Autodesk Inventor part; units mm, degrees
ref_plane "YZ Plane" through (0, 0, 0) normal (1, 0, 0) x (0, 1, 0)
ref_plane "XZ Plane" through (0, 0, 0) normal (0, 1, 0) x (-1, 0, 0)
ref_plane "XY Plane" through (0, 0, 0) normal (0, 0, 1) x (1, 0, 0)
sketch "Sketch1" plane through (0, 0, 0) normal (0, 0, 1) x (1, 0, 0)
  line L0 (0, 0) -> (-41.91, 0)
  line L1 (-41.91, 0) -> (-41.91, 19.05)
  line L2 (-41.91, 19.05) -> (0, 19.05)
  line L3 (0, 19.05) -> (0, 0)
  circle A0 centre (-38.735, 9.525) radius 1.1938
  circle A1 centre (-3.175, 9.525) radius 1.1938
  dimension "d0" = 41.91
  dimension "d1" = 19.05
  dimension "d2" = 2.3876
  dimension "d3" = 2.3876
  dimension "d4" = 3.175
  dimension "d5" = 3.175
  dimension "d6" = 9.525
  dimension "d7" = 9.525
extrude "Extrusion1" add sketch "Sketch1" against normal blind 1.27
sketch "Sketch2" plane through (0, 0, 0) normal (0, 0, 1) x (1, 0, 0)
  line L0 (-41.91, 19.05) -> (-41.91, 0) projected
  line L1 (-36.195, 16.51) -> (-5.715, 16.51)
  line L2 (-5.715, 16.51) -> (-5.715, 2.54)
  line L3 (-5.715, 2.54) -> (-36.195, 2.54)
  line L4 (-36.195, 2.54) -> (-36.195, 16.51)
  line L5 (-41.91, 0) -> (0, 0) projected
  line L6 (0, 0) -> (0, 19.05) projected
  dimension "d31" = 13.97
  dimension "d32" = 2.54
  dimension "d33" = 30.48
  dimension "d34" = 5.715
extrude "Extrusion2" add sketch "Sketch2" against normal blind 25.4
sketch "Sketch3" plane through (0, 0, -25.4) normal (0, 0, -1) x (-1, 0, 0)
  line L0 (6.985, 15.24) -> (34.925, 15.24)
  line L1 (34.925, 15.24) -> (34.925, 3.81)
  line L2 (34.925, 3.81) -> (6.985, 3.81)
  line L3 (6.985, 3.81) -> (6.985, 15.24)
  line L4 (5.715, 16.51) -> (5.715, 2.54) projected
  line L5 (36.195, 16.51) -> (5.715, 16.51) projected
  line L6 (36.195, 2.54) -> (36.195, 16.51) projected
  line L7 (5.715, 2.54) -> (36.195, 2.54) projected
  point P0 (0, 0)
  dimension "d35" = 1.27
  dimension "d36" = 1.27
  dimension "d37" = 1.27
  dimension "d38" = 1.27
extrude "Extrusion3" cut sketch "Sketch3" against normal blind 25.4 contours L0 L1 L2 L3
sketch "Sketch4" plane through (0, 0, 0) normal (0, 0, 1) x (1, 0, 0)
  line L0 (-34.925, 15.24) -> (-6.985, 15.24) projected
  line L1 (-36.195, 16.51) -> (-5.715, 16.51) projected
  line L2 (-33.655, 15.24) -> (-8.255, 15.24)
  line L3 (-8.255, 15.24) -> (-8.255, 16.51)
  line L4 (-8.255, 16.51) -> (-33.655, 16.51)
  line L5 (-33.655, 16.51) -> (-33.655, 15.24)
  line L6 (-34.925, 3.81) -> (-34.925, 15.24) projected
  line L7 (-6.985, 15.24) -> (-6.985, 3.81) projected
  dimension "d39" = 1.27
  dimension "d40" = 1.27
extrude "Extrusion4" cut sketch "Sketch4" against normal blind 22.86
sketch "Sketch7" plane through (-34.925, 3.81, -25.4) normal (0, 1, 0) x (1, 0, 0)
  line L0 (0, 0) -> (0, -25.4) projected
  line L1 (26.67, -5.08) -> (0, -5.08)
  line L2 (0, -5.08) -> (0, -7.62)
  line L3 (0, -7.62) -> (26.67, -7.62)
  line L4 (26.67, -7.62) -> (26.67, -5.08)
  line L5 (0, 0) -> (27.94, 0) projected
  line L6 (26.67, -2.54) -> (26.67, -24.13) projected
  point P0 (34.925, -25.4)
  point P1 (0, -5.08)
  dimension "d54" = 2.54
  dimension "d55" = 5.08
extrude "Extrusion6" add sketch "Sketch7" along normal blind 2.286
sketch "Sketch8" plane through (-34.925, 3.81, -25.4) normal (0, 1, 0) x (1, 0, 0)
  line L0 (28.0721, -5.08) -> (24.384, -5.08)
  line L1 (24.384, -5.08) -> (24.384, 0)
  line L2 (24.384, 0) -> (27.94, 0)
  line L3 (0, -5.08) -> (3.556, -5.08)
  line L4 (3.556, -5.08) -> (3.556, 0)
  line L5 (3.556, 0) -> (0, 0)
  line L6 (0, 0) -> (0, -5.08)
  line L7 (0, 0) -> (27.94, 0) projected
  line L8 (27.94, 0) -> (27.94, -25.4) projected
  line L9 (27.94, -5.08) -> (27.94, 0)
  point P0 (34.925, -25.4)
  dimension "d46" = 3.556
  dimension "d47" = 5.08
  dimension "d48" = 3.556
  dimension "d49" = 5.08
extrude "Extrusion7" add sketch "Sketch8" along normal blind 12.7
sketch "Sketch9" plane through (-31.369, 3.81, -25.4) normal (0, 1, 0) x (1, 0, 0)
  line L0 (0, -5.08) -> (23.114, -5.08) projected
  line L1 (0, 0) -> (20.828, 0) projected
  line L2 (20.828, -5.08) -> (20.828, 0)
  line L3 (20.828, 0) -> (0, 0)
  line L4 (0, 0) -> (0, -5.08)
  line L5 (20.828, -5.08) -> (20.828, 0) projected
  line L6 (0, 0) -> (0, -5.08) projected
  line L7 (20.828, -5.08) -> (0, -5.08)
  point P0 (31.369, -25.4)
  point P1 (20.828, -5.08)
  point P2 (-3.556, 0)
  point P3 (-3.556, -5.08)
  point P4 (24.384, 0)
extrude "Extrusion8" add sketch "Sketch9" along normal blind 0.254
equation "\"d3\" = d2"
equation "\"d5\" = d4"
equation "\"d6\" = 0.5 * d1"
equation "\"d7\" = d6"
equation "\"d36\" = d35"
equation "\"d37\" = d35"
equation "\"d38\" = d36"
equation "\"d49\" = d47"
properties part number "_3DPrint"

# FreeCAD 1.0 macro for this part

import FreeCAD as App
import Part
import Sketcher

V = App.Vector
Q = App.Units.Quantity


def add_polygon(sketch, points):
    """Adds a closed chain of lines whose ends are joined by coincident constraints."""
    first, n = sketch.GeometryCount, len(points)
    for a, b in zip(points, points[1:] + points[:1]):
        sketch.addGeometry(Part.LineSegment(App.Vector(*a, 0), App.Vector(*b, 0)), False)
    for i in range(n):
        sketch.addConstraint(Sketcher.Constraint("Coincident", first + i, 2, first + (i + 1) % n, 1))

doc = App.newDocument("Part")
params = doc.addObject("Spreadsheet::Sheet", "Params")
for row, (alias, value) in enumerate([
    ("sketch1_diameter", "0.094 in"),
    ("sketch1_width", "1.65 in"),
    ("sketch1_height", "0.75 in"),
    ("pad1_length", "0.05 in"),
    ("sketch2_width", "1.2 in"),
    ("sketch2_height", "0.55 in"),
    ("pad2_length", "1 in"),
    ("sketch3_width", "1.1 in"),
    ("sketch3_height", "0.45 in"),
    ("pocket1_length", "1 in"),
    ("sketch4_height", "0.05 in"),
    ("sketch4_width", "1 in"),
    ("pocket2_length", "0.9 in"),
    ("sketch5_height", "0.1 in"),
    ("sketch5_width", "1.05 in"),
    ("pad3_length", "0.09 in"),
    ("sketch6_height", "0.2 in"),
    ("sketch6_width", "0.14 in"),
    ("pad4_length", "0.5 in"),
    ("sketch7_height", "0.2 in"),
    ("sketch7_width", "0.82 in"),
    ("pad5_length", "0.01 in"),
], start=1):
    params.set(f"A{row}", alias)
    params.set(f"B{row}", "=" + value)
    params.setAlias(f"B{row}", alias)

body = doc.addObject("PartDesign::Body", "Body")

# Sketch on XY plane
sketch1 = doc.addObject("Sketcher::SketchObject", "Sketch")
body.addObject(sketch1)
sketch1.AttachmentSupport = (doc.XY_Plane, [""])
sketch1.MapMode = "FlatFace"
add_polygon(sketch1, [(-41.9, 0), (0, 0), (0, 19.1), (-41.9, 19.1)])  # lines 0-3
sketch1.addGeometry(Part.Circle(V(-38.7, 9.5, 0), V(0, 0, 1), 1.2), False)  # 4
sketch1.addGeometry(Part.Circle(V(-3.2, 9.5, 0), V(0, 0, 1), 1.2), False)  # 5
sketch1.addConstraint(Sketcher.Constraint("Horizontal", 0))
sketch1.addConstraint(Sketcher.Constraint("Vertical", 1))
sketch1.addConstraint(Sketcher.Constraint("Horizontal", 2))
sketch1.addConstraint(Sketcher.Constraint("Vertical", 3))
sketch1.addConstraint(Sketcher.Constraint("Coincident", 0, 2, -1, 1))
sketch1.addConstraint(Sketcher.Constraint("Equal", 4, 5))
sketch1.addConstraint(Sketcher.Constraint("Horizontal", 4, 3, 5, 3))
sketch1.addConstraint(Sketcher.Constraint("Diameter", 4, Q("0.094 in")))
sketch1.addConstraint(Sketcher.Constraint("DistanceX", 0, 1, 0, 2, Q("1.65 in")))
sketch1.addConstraint(Sketcher.Constraint("DistanceY", 1, 1, 1, 2, Q("0.75 in")))
sketch1.addConstraint(Sketcher.Constraint("DistanceY", -1, 1, 4, 3, Q("0.375 in")))
sketch1.addConstraint(Sketcher.Constraint("DistanceX", 5, 3, -1, 1, Q("0.125 in")))
sketch1.addConstraint(Sketcher.Constraint("DistanceX", 2, 2, 4, 3, Q("0.125 in")))
sketch1.setExpression("Constraints[11]", "Params.sketch1_diameter")
sketch1.setExpression("Constraints[12]", "Params.sketch1_width")
sketch1.setExpression("Constraints[13]", "Params.sketch1_height")
pad1 = doc.addObject("PartDesign::Pad", "Pad")
body.addObject(pad1)
pad1.Profile = sketch1
pad1.setExpression("Length", "Params.pad1_length")
pad1.Reversed = True

# Sketch on XY plane
sketch2 = doc.addObject("Sketcher::SketchObject", "Sketch001")
body.addObject(sketch2)
sketch2.AttachmentSupport = (doc.XY_Plane, [""])
sketch2.MapMode = "FlatFace"
add_polygon(sketch2, [(-6, 17), (-36, 17), (-36, 3), (-6, 3)])  # lines 0-3
sketch2.addConstraint(Sketcher.Constraint("Horizontal", 0))
sketch2.addConstraint(Sketcher.Constraint("Vertical", 1))
sketch2.addConstraint(Sketcher.Constraint("Horizontal", 2))
sketch2.addConstraint(Sketcher.Constraint("Vertical", 3))
sketch2.addConstraint(Sketcher.Constraint("DistanceX", 0, 2, 0, 1, Q("1.2 in")))
sketch2.addConstraint(Sketcher.Constraint("DistanceY", 1, 2, 1, 1, Q("0.55 in")))
sketch2.addConstraint(Sketcher.Constraint("DistanceY", -1, 1, 1, 2, Q("0.1 in")))
sketch2.addConstraint(Sketcher.Constraint("DistanceX", 2, 2, -1, 1, Q("0.225 in")))
sketch2.setExpression("Constraints[8]", "Params.sketch2_width")
sketch2.setExpression("Constraints[9]", "Params.sketch2_height")
pad2 = doc.addObject("PartDesign::Pad", "Pad001")
body.addObject(pad2)
pad2.Profile = sketch2
pad2.setExpression("Length", "Params.pad2_length")
pad2.Reversed = True

# Sketch on XY plane
sketch3 = doc.addObject("Sketcher::SketchObject", "Sketch002")
body.addObject(sketch3)
sketch3.AttachmentSupport = (doc.XY_Plane, [""])
sketch3.MapMode = "FlatFace"
sketch3.AttachmentOffset = App.Placement(V(0, 0, -1 * 25.4), App.Rotation())
add_polygon(sketch3, [(-35, 15), (-7, 15), (-7, 4), (-35, 4)])  # lines 0-3
sketch3.addConstraint(Sketcher.Constraint("Horizontal", 0))
sketch3.addConstraint(Sketcher.Constraint("Vertical", 1))
sketch3.addConstraint(Sketcher.Constraint("Horizontal", 2))
sketch3.addConstraint(Sketcher.Constraint("Vertical", 3))
sketch3.addConstraint(Sketcher.Constraint("DistanceX", 0, 1, 0, 2, Q("1.1 in")))
sketch3.addConstraint(Sketcher.Constraint("DistanceY", 1, 2, 1, 1, Q("0.45 in")))
sketch3.addConstraint(Sketcher.Constraint("DistanceY", -1, 1, 0, 2, Q("0.6 in")))
sketch3.addConstraint(Sketcher.Constraint("DistanceX", 0, 2, -1, 1, Q("0.275 in")))
sketch3.setExpression("Constraints[8]", "Params.sketch3_width")
sketch3.setExpression("Constraints[9]", "Params.sketch3_height")
pocket1 = doc.addObject("PartDesign::Pocket", "Pocket")
body.addObject(pocket1)
pocket1.Profile = sketch3
pocket1.setExpression("Length", "Params.pocket1_length")
pocket1.Reversed = True

# Sketch on XY plane
sketch4 = doc.addObject("Sketcher::SketchObject", "Sketch003")
body.addObject(sketch4)
sketch4.AttachmentSupport = (doc.XY_Plane, [""])
sketch4.MapMode = "FlatFace"
add_polygon(sketch4, [(-33.7, 16.5), (-33.7, 15.2), (-8.3, 15.2), (-8.3, 16.5)])  # lines 0-3
sketch4.addConstraint(Sketcher.Constraint("Vertical", 0))
sketch4.addConstraint(Sketcher.Constraint("Horizontal", 1))
sketch4.addConstraint(Sketcher.Constraint("Vertical", 2))
sketch4.addConstraint(Sketcher.Constraint("Horizontal", 3))
sketch4.addConstraint(Sketcher.Constraint("DistanceY", 0, 2, 0, 1, Q("0.05 in")))
sketch4.addConstraint(Sketcher.Constraint("DistanceX", 1, 1, 1, 2, Q("1 in")))
sketch4.addConstraint(Sketcher.Constraint("DistanceY", -1, 1, 0, 2, Q("0.6 in")))
sketch4.addConstraint(Sketcher.Constraint("DistanceX", 0, 2, -1, 1, Q("1.325 in")))
sketch4.setExpression("Constraints[8]", "Params.sketch4_height")
sketch4.setExpression("Constraints[9]", "Params.sketch4_width")
pocket2 = doc.addObject("PartDesign::Pocket", "Pocket001")
body.addObject(pocket2)
pocket2.Profile = sketch4
pocket2.setExpression("Length", "Params.pocket2_length")

# Sketch on XZ plane
sketch5 = doc.addObject("Sketcher::SketchObject", "Sketch004")
body.addObject(sketch5)
sketch5.AttachmentSupport = (doc.XZ_Plane, [""])
sketch5.MapMode = "FlatFace"
sketch5.AttachmentOffset = App.Placement(V(0, 0, -0.15 * 25.4), App.Rotation())
add_polygon(sketch5, [(-8.3, -20.3), (-34.9, -20.3), (-34.9, -17.8), (-8.3, -17.8)])  # lines 0-3
sketch5.addConstraint(Sketcher.Constraint("Horizontal", 0))
sketch5.addConstraint(Sketcher.Constraint("Vertical", 1))
sketch5.addConstraint(Sketcher.Constraint("Horizontal", 2))
sketch5.addConstraint(Sketcher.Constraint("Vertical", 3))
sketch5.addConstraint(Sketcher.Constraint("DistanceY", 1, 1, 1, 2, Q("0.1 in")))
sketch5.addConstraint(Sketcher.Constraint("DistanceX", 0, 2, 0, 1, Q("1.05 in")))
sketch5.addConstraint(Sketcher.Constraint("DistanceY", 0, 2, -1, 1, Q("0.8 in")))
sketch5.addConstraint(Sketcher.Constraint("DistanceX", 0, 2, -1, 1, Q("1.375 in")))
sketch5.setExpression("Constraints[8]", "Params.sketch5_height")
sketch5.setExpression("Constraints[9]", "Params.sketch5_width")
pad3 = doc.addObject("PartDesign::Pad", "Pad002")
body.addObject(pad3)
pad3.Profile = sketch5
pad3.setExpression("Length", "Params.pad3_length")
pad3.Reversed = True

# Sketch on XZ plane
sketch6 = doc.addObject("Sketcher::SketchObject", "Sketch005")
body.addObject(sketch6)
sketch6.AttachmentSupport = (doc.XZ_Plane, [""])
sketch6.MapMode = "FlatFace"
sketch6.AttachmentOffset = App.Placement(V(0, 0, -0.15 * 25.4), App.Rotation())
add_polygon(sketch6, [(-31.4, -20.3), (-31.4, -25.4), (-34.9, -25.4), (-34.9, -20.3)])  # lines 0-3
add_polygon(sketch6, [(-10.5, -20.3), (-7, -20.3), (-7, -25.4), (-10.5, -25.4)])  # lines 4-7
sketch6.addConstraint(Sketcher.Constraint("Vertical", 0))
sketch6.addConstraint(Sketcher.Constraint("Horizontal", 1))
sketch6.addConstraint(Sketcher.Constraint("Vertical", 2))
sketch6.addConstraint(Sketcher.Constraint("Horizontal", 3))
sketch6.addConstraint(Sketcher.Constraint("Horizontal", 4))
sketch6.addConstraint(Sketcher.Constraint("Vertical", 5))
sketch6.addConstraint(Sketcher.Constraint("Horizontal", 6))
sketch6.addConstraint(Sketcher.Constraint("Vertical", 7))
sketch6.addConstraint(Sketcher.Constraint("Horizontal", 3, 2, 4, 2))
sketch6.addConstraint(Sketcher.Constraint("Horizontal", 1, 2, 5, 2))
sketch6.addConstraint(Sketcher.Constraint("Equal", 3, 4))
sketch6.addConstraint(Sketcher.Constraint("DistanceY", 0, 2, 0, 1, Q("0.2 in")))
sketch6.addConstraint(Sketcher.Constraint("DistanceX", 1, 2, 1, 1, Q("0.14 in")))
sketch6.addConstraint(Sketcher.Constraint("DistanceY", 0, 2, -1, 1, Q("1 in")))
sketch6.addConstraint(Sketcher.Constraint("DistanceX", 2, 2, 4, 2, Q("1.1 in")))
sketch6.addConstraint(Sketcher.Constraint("DistanceX", 0, 2, -1, 1, Q("1.235 in")))
sketch6.setExpression("Constraints[19]", "Params.sketch6_height")
sketch6.setExpression("Constraints[20]", "Params.sketch6_width")
pad4 = doc.addObject("PartDesign::Pad", "Pad003")
body.addObject(pad4)
pad4.Profile = sketch6
pad4.setExpression("Length", "Params.pad4_length")
pad4.Reversed = True

# Sketch on XZ plane
sketch7 = doc.addObject("Sketcher::SketchObject", "Sketch006")
body.addObject(sketch7)
sketch7.AttachmentSupport = (doc.XZ_Plane, [""])
sketch7.MapMode = "FlatFace"
sketch7.AttachmentOffset = App.Placement(V(0, 0, -0.15 * 25.4), App.Rotation())
add_polygon(sketch7, [(-31, -25), (-31, -20), (-11, -20), (-11, -25)])  # lines 0-3
sketch7.addConstraint(Sketcher.Constraint("Vertical", 0))
sketch7.addConstraint(Sketcher.Constraint("Horizontal", 1))
sketch7.addConstraint(Sketcher.Constraint("Vertical", 2))
sketch7.addConstraint(Sketcher.Constraint("Horizontal", 3))
sketch7.addConstraint(Sketcher.Constraint("DistanceY", 0, 1, 0, 2, Q("0.2 in")))
sketch7.addConstraint(Sketcher.Constraint("DistanceY", 2, 2, -1, 1, Q("1 in")))
sketch7.addConstraint(Sketcher.Constraint("DistanceX", 1, 1, 1, 2, Q("0.82 in")))
sketch7.addConstraint(Sketcher.Constraint("DistanceX", 0, 2, -1, 1, Q("1.235 in")))
sketch7.setExpression("Constraints[8]", "Params.sketch7_height")
sketch7.setExpression("Constraints[10]", "Params.sketch7_width")
pad5 = doc.addObject("PartDesign::Pad", "Pad004")
body.addObject(pad5)
pad5.Profile = sketch7
pad5.setExpression("Length", "Params.pad5_length")
pad5.Reversed = True

doc.recompute()
